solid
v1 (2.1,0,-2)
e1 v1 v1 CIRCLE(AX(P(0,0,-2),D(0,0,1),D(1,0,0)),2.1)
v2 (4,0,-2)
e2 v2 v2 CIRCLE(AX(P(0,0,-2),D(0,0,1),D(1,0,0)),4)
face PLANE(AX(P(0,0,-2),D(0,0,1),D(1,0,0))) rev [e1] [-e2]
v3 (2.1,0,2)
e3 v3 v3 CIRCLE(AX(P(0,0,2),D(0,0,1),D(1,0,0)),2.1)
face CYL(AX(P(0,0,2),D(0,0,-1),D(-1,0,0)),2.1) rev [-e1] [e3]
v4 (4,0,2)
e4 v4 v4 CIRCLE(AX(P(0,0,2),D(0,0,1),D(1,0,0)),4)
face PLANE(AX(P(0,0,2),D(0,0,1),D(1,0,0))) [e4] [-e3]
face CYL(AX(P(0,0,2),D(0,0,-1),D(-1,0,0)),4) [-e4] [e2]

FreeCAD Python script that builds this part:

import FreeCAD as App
import Part
import Sketcher

V = App.Vector

doc = App.newDocument("Part")
body = doc.addObject("PartDesign::Body", "Body")

# Sketch on XY plane
sketch1 = body.newObject("Sketcher::SketchObject", "Sketch")
sketch1.AttachmentSupport = (doc.getObject("XY_Plane"), [""])
sketch1.MapMode = "FlatFace"
sketch1.addGeometry([
    Part.Circle(V(0, 0, 0), V(0, 0, 1), 4),
    Part.Circle(V(0, 0, 0), V(0, 0, 1), 2.1),
], False)
sketch1.addConstraint([
    Sketcher.Constraint("Coincident", 0, 3, -1, 1),
    Sketcher.Constraint("Coincident", 1, 3, -1, 1),
    Sketcher.Constraint("Diameter", 0, 8.0),
    Sketcher.Constraint("Diameter", 1, 4.2),
])
pad1 = body.newObject("PartDesign::Pad", "Pad")
pad1.Profile = sketch1
pad1.Type = "TwoLengths"
pad1.Length = 2
pad1.Length2 = 2

doc.recompute()
